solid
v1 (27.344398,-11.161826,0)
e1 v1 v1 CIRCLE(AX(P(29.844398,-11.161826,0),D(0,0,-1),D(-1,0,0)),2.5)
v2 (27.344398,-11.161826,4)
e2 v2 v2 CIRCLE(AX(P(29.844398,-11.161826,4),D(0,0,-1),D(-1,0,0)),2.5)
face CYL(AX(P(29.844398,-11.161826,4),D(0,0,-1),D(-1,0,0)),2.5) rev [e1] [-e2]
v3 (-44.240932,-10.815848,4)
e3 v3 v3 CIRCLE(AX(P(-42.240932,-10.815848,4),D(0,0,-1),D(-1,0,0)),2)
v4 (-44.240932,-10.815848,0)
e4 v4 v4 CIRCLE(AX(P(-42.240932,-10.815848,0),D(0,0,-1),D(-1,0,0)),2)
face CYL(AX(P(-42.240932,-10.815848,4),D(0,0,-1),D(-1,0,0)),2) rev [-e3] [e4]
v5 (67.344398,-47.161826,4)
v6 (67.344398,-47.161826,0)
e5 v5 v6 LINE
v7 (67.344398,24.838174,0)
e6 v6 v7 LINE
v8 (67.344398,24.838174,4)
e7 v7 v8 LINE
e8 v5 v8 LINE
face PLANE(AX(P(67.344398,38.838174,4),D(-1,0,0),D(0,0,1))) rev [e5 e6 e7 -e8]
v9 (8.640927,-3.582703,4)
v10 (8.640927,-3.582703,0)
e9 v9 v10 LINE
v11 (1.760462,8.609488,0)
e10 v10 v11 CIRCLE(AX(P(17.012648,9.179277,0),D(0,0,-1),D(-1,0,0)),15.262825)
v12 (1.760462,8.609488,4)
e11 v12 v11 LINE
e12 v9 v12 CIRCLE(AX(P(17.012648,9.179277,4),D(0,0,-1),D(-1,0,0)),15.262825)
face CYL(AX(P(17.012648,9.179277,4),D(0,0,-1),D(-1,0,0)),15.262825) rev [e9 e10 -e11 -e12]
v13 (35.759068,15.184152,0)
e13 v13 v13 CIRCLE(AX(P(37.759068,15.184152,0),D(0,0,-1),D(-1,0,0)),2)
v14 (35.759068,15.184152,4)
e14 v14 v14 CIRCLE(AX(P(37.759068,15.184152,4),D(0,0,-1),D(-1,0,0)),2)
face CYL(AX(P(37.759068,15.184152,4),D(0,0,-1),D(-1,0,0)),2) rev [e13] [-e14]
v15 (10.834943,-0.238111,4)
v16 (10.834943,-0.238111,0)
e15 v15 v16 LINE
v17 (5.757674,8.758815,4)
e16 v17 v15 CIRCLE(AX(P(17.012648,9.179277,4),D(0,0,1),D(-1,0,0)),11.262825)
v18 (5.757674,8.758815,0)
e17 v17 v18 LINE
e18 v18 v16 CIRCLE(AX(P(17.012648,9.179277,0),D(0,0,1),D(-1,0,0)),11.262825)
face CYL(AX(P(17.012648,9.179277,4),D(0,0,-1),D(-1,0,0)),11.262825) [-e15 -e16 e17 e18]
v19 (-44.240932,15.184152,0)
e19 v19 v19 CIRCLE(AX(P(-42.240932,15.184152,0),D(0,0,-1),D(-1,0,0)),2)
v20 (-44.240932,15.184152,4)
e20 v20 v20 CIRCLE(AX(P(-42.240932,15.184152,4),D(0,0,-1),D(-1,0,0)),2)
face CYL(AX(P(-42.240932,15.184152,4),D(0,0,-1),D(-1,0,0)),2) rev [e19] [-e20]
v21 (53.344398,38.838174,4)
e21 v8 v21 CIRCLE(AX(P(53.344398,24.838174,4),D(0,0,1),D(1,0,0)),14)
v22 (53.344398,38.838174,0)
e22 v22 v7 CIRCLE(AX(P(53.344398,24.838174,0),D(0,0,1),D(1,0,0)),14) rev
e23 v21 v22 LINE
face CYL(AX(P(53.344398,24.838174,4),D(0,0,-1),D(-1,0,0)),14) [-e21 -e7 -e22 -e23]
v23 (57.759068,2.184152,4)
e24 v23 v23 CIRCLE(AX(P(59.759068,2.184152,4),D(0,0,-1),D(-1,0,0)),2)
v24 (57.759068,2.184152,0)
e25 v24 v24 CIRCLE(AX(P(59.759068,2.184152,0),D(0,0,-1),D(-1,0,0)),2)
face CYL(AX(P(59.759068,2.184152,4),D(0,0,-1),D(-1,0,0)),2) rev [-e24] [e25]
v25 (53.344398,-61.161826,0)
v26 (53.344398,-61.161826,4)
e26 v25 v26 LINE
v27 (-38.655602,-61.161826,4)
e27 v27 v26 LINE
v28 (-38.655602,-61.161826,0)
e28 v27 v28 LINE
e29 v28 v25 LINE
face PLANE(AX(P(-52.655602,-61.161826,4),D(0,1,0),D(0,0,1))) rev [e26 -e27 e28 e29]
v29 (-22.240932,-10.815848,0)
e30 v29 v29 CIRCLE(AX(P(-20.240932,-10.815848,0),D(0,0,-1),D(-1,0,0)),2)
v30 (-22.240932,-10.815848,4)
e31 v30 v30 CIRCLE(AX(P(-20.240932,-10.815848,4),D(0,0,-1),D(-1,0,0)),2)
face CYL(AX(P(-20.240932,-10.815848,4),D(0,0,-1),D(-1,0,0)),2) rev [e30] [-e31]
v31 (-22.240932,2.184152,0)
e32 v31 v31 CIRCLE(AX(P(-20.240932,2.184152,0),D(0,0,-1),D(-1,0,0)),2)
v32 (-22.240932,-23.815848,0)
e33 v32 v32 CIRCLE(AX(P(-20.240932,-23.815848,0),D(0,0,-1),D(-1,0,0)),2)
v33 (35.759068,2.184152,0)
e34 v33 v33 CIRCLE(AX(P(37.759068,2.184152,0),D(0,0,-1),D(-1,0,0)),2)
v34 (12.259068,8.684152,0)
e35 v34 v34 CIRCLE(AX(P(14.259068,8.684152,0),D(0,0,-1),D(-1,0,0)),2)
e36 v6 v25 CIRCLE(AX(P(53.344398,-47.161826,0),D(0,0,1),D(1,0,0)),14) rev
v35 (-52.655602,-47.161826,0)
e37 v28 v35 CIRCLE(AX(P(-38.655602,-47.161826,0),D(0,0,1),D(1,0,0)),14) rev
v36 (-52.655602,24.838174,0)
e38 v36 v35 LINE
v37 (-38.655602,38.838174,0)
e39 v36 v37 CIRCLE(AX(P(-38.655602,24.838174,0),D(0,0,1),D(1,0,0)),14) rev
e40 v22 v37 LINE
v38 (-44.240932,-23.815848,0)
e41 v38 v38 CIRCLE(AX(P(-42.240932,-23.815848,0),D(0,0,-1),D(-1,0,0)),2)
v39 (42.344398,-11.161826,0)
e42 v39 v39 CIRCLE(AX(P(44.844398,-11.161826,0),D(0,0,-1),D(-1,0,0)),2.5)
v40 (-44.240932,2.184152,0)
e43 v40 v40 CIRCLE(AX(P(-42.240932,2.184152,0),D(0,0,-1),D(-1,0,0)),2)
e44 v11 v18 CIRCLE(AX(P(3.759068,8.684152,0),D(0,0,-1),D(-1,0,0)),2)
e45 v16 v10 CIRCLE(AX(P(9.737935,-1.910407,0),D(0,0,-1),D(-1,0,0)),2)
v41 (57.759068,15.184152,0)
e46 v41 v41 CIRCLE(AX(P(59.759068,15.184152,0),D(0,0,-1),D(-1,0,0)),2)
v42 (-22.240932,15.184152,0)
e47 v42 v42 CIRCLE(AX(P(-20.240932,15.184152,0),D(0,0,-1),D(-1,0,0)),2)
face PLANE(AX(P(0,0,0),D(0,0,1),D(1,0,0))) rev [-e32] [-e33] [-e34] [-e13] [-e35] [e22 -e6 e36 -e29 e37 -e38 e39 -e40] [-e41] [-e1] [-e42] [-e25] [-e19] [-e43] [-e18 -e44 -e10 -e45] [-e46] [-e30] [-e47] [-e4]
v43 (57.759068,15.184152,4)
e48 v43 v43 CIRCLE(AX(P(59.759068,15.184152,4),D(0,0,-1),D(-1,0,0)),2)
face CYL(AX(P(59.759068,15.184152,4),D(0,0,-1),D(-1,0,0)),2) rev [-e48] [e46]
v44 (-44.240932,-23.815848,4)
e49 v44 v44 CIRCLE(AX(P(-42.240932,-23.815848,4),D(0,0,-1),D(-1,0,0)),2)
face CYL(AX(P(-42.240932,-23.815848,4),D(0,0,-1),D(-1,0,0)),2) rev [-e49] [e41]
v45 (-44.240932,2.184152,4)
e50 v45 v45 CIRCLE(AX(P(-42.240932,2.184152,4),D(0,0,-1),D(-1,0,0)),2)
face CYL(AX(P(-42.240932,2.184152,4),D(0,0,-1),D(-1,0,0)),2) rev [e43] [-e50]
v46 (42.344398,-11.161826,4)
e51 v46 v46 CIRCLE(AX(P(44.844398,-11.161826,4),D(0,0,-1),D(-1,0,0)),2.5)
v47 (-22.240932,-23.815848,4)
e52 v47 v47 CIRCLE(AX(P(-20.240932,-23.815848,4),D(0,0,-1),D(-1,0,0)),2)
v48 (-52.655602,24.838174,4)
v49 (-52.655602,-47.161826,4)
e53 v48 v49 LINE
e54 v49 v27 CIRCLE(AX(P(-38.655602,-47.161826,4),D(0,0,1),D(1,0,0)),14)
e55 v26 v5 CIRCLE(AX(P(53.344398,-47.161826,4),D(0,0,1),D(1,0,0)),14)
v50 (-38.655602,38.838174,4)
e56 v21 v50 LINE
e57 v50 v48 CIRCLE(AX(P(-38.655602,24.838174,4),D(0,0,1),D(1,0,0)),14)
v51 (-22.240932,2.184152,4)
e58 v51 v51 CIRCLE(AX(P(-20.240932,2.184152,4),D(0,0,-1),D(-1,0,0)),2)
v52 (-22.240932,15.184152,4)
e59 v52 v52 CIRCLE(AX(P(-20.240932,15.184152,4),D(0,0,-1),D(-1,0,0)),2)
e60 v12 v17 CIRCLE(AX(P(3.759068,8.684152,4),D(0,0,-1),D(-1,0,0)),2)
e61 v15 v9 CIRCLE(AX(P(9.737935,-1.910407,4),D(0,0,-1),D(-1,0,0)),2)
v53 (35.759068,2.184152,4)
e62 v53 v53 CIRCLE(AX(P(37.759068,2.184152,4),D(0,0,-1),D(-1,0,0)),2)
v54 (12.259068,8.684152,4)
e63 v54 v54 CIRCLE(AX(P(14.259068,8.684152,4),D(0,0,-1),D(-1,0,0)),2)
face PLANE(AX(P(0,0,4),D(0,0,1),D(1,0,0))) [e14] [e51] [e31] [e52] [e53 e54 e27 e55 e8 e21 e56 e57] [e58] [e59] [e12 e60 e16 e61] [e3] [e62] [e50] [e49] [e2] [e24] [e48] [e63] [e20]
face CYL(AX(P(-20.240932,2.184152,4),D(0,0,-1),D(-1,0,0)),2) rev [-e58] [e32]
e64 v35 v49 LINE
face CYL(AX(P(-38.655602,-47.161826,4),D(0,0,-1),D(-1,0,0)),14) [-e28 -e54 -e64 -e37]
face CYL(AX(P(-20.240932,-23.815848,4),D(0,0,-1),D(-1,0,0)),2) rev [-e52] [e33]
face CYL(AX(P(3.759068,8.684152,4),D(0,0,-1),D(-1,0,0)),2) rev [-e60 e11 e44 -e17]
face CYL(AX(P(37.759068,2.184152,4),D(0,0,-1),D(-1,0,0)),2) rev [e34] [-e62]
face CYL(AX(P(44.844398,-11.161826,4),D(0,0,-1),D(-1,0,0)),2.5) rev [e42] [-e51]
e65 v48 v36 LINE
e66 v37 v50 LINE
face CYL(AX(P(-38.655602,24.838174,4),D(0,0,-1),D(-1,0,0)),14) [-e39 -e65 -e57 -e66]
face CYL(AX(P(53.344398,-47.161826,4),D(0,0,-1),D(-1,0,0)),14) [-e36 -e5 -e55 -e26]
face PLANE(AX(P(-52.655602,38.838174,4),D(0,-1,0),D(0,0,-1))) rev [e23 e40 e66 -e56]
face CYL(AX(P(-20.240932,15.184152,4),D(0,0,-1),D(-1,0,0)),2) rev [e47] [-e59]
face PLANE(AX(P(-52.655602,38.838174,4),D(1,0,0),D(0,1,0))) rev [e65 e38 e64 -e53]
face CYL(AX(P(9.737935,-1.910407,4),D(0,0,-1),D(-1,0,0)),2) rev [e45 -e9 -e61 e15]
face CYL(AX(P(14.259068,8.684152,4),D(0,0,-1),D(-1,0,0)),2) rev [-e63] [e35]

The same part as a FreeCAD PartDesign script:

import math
import FreeCAD as App
import Part
import Sketcher

V = App.Vector
Q = App.Units.Quantity


def edges_at(feature, points):
    """Names of the edges that pass closest to the given points."""
    edges = feature.Shape.Edges
    near = lambda p: min(range(len(edges)), key=lambda i: edges[i].distToShape(Part.Vertex(*p))[0])
    return sorted({f"Edge{near(p) + 1}" for p in points})


def add_polygon(sketch, points):
    """Adds a closed chain of lines whose ends are joined by coincident constraints."""
    first, n = sketch.GeometryCount, len(points)
    for a, b in zip(points, points[1:] + points[:1]):
        sketch.addGeometry(Part.LineSegment(App.Vector(*a, 0), App.Vector(*b, 0)), False)
    for i in range(n):
        sketch.addConstraint(Sketcher.Constraint("Coincident", first + i, 2, first + (i + 1) % n, 1))

doc = App.newDocument("Part")
body = doc.addObject("PartDesign::Body", "Body")

sketch1 = doc.addObject("Sketcher::SketchObject", "Sketch")
body.addObject(sketch1)
sketch1.AttachmentSupport = (doc.XY_Plane, [""])
sketch1.MapMode = "FlatFace"
add_polygon(sketch1, [(-53, 39), (-53, -61), (67, -61), (67, 39)])
sketch1.addConstraint([
    Sketcher.Constraint("Vertical", 0),
    Sketcher.Constraint("Horizontal", 1),
    Sketcher.Constraint("Vertical", 2),
    Sketcher.Constraint("Horizontal", 3),
    Sketcher.Constraint("DistanceX", 1, 1, 1, 2, Q("120 mm")),
    Sketcher.Constraint("DistanceY", 0, 2, 0, 1, Q("100 mm")),
    Sketcher.Constraint("DistanceX", 0, 2, -1, 1, Q("52.655602 mm")),
    Sketcher.Constraint("DistanceY", 0, 2, -1, 1, Q("61.161826 mm")),
])
pad1 = doc.addObject("PartDesign::Pad", "Pad")
body.addObject(pad1)
pad1.Profile = sketch1
pad1.Length = 4
doc.recompute()

fillet = doc.addObject("PartDesign::Fillet", "Fillet")
body.addObject(fillet)
fillet.Base = (pad1, edges_at(pad1, [
    (-52.656, 38.838, 2),
    (67.344, 38.838, 2),
    (67.344, -61.162, 2),
    (-52.656, -61.162, 2),
]))
fillet.Radius = 14

sketch2 = doc.addObject("Sketcher::SketchObject", "Sketch001")
body.addObject(sketch2)
sketch2.AttachmentSupport = (doc.XY_Plane, [""])
sketch2.MapMode = "FlatFace"
sketch2.addGeometry([
    Part.Circle(V(44.8, -11.2, 0), V(0, 0, 1), 2.5),
    Part.Circle(V(29.8, -11.2, 0), V(0, 0, 1), 2.5),
], False)
sketch2.addConstraint([
    Sketcher.Constraint("Equal", 0, 1),
    Sketcher.Constraint("Horizontal", 0, 3, 1, 3),
    Sketcher.Constraint("Diameter", 0, Q("5 mm")),
    Sketcher.Constraint("DistanceX", 1, 3, 0, 3, Q("15 mm")),
    Sketcher.Constraint("DistanceX", -1, 1, 0, 3, Q("44.844398 mm")),
    Sketcher.Constraint("DistanceY", 0, 3, -1, 1, Q("11.161826 mm")),
])
pocket1 = doc.addObject("PartDesign::Pocket", "Pocket")
body.addObject(pocket1)
pocket1.Profile = sketch2
pocket1.Type = "ThroughAll"
pocket1.Reversed = True

sketch3 = doc.addObject("Sketcher::SketchObject", "Sketch002")
body.addObject(sketch3)
sketch3.AttachmentSupport = (doc.XY_Plane, [""])
sketch3.MapMode = "FlatFace"
sketch3.addGeometry([
    Part.Circle(V(-42.2, -23.8, 0), V(0, 0, 1), 2),
    Part.Circle(V(-20.2, -23.8, 0), V(0, 0, 1), 2),
    Part.Circle(V(-42.2, -10.8, 0), V(0, 0, 1), 2),
    Part.Circle(V(-20.2, -10.8, 0), V(0, 0, 1), 2),
    Part.Circle(V(-42.2, 2.2, 0), V(0, 0, 1), 2),
    Part.Circle(V(-42.2, 15.2, 0), V(0, 0, 1), 2),
    Part.Circle(V(-20.2, 2.2, 0), V(0, 0, 1), 2),
    Part.Circle(V(-20.2, 15.2, 0), V(0, 0, 1), 2),
    Part.Circle(V(14.3, 8.7, 0), V(0, 0, 1), 2),
    Part.Circle(V(37.8, 2.2, 0), V(0, 0, 1), 2),
    Part.Circle(V(59.8, 2.2, 0), V(0, 0, 1), 2),
    Part.Circle(V(59.8, 15.2, 0), V(0, 0, 1), 2),
    Part.Circle(V(37.8, 15.2, 0), V(0, 0, 1), 2),
    Part.ArcOfCircle(Part.Circle(V(3.8, 8.7, 0), V(0, 0, 1), 2), math.radians(2), math.radians(182)),
    Part.ArcOfCircle(Part.Circle(V(17, 9.2, 0), V(0, 0, 1), 11.3), math.radians(-178), math.radians(-123)),
    Part.ArcOfCircle(Part.Circle(V(9.7, -1.9, 0), V(0, 0, 1), 2), math.radians(-123), math.radians(57)),
    Part.ArcOfCircle(Part.Circle(V(17, 9.2, 0), V(0, 0, 1), 15.3), math.radians(-178), math.radians(-123)),
], False)
sketch3.addConstraint([
    Sketcher.Constraint("Tangent", 13, 1, 14, 1),
    Sketcher.Constraint("Tangent", 14, 2, 15, 2),
    Sketcher.Constraint("Tangent", 15, 1, 16, 2),
    Sketcher.Constraint("Tangent", 16, 1, 13, 2),
    Sketcher.Constraint("Coincident", 16, 3, 14, 3),
    Sketcher.Constraint("Equal", 0, 1),
    Sketcher.Constraint("Equal", 1, 2),
    Sketcher.Constraint("Equal", 2, 3),
    Sketcher.Constraint("Equal", 3, 4),
    Sketcher.Constraint("Equal", 4, 5),
    Sketcher.Constraint("Equal", 5, 6),
    Sketcher.Constraint("Equal", 6, 7),
    Sketcher.Constraint("Equal", 7, 8),
    Sketcher.Constraint("Equal", 8, 9),
    Sketcher.Constraint("Equal", 9, 10),
    Sketcher.Constraint("Equal", 10, 11),
    Sketcher.Constraint("Equal", 11, 12),
    Sketcher.Constraint("Equal", 12, 13),
    Sketcher.Constraint("Horizontal", 0, 3, 1, 3),
    Sketcher.Constraint("Horizontal", 2, 3, 3, 3),
    Sketcher.Constraint("Horizontal", 4, 3, 6, 3),
    Sketcher.Constraint("Horizontal", 5, 3, 7, 3),
    Sketcher.Constraint("Horizontal", 6, 3, 9, 3),
    Sketcher.Constraint("Horizontal", 9, 3, 10, 3),
    Sketcher.Constraint("Horizontal", 7, 3, 11, 3),
    Sketcher.Constraint("Horizontal", 11, 3, 12, 3),
    Sketcher.Constraint("Horizontal", 8, 3, 13, 3),
    Sketcher.Constraint("Vertical", 0, 3, 2, 3),
    Sketcher.Constraint("Vertical", 1, 3, 3, 3),
    Sketcher.Constraint("Vertical", 2, 3, 4, 3),
    Sketcher.Constraint("Vertical", 4, 3, 5, 3),
    Sketcher.Constraint("Vertical", 3, 3, 6, 3),
    Sketcher.Constraint("Vertical", 6, 3, 7, 3),
    Sketcher.Constraint("Vertical", 10, 3, 11, 3),
    Sketcher.Constraint("Vertical", 9, 3, 12, 3),
    Sketcher.Constraint("Diameter", 0, Q("4 mm")),
    Sketcher.Constraint("DistanceX", 0, 3, 1, 3, Q("22 mm")),
    Sketcher.Constraint("DistanceY", 0, 3, 2, 3, Q("13 mm")),
    Sketcher.Constraint("DistanceY", 2, 3, 4, 3, Q("13 mm")),
    Sketcher.Constraint("DistanceY", 4, 3, 5, 3, Q("13 mm")),
    Sketcher.Constraint("DistanceX", 6, 3, 9, 3, Q("58 mm")),
    Sketcher.Constraint("DistanceX", 9, 3, 10, 3, Q("22 mm")),
    Sketcher.Constraint("DistanceX", 6, 3, 13, 3, Q("24 mm")),
    Sketcher.Constraint("DistanceX", 6, 3, 8, 3, Q("34.5 mm")),
    Sketcher.Constraint("DistanceY", 6, 3, 8, 3, Q("6.5 mm")),
    Sketcher.Constraint("Radius", 14, Q("11.262825 mm")),
    Sketcher.Constraint("DistanceY", 14, 2, 16, 1, Q("8.847599 mm")),
    Sketcher.Constraint("DistanceX", 0, 3, -1, 1, Q("42.240932 mm")),
    Sketcher.Constraint("DistanceY", 0, 3, -1, 1, Q("23.815848 mm")),
    Sketcher.Constraint("DistanceX", -1, 1, 14, 3, Q("17.012648 mm")),
])
pocket2 = doc.addObject("PartDesign::Pocket", "Pocket001")
body.addObject(pocket2)
pocket2.Profile = sketch3
pocket2.Type = "ThroughAll"
pocket2.Reversed = True

doc.recompute()
